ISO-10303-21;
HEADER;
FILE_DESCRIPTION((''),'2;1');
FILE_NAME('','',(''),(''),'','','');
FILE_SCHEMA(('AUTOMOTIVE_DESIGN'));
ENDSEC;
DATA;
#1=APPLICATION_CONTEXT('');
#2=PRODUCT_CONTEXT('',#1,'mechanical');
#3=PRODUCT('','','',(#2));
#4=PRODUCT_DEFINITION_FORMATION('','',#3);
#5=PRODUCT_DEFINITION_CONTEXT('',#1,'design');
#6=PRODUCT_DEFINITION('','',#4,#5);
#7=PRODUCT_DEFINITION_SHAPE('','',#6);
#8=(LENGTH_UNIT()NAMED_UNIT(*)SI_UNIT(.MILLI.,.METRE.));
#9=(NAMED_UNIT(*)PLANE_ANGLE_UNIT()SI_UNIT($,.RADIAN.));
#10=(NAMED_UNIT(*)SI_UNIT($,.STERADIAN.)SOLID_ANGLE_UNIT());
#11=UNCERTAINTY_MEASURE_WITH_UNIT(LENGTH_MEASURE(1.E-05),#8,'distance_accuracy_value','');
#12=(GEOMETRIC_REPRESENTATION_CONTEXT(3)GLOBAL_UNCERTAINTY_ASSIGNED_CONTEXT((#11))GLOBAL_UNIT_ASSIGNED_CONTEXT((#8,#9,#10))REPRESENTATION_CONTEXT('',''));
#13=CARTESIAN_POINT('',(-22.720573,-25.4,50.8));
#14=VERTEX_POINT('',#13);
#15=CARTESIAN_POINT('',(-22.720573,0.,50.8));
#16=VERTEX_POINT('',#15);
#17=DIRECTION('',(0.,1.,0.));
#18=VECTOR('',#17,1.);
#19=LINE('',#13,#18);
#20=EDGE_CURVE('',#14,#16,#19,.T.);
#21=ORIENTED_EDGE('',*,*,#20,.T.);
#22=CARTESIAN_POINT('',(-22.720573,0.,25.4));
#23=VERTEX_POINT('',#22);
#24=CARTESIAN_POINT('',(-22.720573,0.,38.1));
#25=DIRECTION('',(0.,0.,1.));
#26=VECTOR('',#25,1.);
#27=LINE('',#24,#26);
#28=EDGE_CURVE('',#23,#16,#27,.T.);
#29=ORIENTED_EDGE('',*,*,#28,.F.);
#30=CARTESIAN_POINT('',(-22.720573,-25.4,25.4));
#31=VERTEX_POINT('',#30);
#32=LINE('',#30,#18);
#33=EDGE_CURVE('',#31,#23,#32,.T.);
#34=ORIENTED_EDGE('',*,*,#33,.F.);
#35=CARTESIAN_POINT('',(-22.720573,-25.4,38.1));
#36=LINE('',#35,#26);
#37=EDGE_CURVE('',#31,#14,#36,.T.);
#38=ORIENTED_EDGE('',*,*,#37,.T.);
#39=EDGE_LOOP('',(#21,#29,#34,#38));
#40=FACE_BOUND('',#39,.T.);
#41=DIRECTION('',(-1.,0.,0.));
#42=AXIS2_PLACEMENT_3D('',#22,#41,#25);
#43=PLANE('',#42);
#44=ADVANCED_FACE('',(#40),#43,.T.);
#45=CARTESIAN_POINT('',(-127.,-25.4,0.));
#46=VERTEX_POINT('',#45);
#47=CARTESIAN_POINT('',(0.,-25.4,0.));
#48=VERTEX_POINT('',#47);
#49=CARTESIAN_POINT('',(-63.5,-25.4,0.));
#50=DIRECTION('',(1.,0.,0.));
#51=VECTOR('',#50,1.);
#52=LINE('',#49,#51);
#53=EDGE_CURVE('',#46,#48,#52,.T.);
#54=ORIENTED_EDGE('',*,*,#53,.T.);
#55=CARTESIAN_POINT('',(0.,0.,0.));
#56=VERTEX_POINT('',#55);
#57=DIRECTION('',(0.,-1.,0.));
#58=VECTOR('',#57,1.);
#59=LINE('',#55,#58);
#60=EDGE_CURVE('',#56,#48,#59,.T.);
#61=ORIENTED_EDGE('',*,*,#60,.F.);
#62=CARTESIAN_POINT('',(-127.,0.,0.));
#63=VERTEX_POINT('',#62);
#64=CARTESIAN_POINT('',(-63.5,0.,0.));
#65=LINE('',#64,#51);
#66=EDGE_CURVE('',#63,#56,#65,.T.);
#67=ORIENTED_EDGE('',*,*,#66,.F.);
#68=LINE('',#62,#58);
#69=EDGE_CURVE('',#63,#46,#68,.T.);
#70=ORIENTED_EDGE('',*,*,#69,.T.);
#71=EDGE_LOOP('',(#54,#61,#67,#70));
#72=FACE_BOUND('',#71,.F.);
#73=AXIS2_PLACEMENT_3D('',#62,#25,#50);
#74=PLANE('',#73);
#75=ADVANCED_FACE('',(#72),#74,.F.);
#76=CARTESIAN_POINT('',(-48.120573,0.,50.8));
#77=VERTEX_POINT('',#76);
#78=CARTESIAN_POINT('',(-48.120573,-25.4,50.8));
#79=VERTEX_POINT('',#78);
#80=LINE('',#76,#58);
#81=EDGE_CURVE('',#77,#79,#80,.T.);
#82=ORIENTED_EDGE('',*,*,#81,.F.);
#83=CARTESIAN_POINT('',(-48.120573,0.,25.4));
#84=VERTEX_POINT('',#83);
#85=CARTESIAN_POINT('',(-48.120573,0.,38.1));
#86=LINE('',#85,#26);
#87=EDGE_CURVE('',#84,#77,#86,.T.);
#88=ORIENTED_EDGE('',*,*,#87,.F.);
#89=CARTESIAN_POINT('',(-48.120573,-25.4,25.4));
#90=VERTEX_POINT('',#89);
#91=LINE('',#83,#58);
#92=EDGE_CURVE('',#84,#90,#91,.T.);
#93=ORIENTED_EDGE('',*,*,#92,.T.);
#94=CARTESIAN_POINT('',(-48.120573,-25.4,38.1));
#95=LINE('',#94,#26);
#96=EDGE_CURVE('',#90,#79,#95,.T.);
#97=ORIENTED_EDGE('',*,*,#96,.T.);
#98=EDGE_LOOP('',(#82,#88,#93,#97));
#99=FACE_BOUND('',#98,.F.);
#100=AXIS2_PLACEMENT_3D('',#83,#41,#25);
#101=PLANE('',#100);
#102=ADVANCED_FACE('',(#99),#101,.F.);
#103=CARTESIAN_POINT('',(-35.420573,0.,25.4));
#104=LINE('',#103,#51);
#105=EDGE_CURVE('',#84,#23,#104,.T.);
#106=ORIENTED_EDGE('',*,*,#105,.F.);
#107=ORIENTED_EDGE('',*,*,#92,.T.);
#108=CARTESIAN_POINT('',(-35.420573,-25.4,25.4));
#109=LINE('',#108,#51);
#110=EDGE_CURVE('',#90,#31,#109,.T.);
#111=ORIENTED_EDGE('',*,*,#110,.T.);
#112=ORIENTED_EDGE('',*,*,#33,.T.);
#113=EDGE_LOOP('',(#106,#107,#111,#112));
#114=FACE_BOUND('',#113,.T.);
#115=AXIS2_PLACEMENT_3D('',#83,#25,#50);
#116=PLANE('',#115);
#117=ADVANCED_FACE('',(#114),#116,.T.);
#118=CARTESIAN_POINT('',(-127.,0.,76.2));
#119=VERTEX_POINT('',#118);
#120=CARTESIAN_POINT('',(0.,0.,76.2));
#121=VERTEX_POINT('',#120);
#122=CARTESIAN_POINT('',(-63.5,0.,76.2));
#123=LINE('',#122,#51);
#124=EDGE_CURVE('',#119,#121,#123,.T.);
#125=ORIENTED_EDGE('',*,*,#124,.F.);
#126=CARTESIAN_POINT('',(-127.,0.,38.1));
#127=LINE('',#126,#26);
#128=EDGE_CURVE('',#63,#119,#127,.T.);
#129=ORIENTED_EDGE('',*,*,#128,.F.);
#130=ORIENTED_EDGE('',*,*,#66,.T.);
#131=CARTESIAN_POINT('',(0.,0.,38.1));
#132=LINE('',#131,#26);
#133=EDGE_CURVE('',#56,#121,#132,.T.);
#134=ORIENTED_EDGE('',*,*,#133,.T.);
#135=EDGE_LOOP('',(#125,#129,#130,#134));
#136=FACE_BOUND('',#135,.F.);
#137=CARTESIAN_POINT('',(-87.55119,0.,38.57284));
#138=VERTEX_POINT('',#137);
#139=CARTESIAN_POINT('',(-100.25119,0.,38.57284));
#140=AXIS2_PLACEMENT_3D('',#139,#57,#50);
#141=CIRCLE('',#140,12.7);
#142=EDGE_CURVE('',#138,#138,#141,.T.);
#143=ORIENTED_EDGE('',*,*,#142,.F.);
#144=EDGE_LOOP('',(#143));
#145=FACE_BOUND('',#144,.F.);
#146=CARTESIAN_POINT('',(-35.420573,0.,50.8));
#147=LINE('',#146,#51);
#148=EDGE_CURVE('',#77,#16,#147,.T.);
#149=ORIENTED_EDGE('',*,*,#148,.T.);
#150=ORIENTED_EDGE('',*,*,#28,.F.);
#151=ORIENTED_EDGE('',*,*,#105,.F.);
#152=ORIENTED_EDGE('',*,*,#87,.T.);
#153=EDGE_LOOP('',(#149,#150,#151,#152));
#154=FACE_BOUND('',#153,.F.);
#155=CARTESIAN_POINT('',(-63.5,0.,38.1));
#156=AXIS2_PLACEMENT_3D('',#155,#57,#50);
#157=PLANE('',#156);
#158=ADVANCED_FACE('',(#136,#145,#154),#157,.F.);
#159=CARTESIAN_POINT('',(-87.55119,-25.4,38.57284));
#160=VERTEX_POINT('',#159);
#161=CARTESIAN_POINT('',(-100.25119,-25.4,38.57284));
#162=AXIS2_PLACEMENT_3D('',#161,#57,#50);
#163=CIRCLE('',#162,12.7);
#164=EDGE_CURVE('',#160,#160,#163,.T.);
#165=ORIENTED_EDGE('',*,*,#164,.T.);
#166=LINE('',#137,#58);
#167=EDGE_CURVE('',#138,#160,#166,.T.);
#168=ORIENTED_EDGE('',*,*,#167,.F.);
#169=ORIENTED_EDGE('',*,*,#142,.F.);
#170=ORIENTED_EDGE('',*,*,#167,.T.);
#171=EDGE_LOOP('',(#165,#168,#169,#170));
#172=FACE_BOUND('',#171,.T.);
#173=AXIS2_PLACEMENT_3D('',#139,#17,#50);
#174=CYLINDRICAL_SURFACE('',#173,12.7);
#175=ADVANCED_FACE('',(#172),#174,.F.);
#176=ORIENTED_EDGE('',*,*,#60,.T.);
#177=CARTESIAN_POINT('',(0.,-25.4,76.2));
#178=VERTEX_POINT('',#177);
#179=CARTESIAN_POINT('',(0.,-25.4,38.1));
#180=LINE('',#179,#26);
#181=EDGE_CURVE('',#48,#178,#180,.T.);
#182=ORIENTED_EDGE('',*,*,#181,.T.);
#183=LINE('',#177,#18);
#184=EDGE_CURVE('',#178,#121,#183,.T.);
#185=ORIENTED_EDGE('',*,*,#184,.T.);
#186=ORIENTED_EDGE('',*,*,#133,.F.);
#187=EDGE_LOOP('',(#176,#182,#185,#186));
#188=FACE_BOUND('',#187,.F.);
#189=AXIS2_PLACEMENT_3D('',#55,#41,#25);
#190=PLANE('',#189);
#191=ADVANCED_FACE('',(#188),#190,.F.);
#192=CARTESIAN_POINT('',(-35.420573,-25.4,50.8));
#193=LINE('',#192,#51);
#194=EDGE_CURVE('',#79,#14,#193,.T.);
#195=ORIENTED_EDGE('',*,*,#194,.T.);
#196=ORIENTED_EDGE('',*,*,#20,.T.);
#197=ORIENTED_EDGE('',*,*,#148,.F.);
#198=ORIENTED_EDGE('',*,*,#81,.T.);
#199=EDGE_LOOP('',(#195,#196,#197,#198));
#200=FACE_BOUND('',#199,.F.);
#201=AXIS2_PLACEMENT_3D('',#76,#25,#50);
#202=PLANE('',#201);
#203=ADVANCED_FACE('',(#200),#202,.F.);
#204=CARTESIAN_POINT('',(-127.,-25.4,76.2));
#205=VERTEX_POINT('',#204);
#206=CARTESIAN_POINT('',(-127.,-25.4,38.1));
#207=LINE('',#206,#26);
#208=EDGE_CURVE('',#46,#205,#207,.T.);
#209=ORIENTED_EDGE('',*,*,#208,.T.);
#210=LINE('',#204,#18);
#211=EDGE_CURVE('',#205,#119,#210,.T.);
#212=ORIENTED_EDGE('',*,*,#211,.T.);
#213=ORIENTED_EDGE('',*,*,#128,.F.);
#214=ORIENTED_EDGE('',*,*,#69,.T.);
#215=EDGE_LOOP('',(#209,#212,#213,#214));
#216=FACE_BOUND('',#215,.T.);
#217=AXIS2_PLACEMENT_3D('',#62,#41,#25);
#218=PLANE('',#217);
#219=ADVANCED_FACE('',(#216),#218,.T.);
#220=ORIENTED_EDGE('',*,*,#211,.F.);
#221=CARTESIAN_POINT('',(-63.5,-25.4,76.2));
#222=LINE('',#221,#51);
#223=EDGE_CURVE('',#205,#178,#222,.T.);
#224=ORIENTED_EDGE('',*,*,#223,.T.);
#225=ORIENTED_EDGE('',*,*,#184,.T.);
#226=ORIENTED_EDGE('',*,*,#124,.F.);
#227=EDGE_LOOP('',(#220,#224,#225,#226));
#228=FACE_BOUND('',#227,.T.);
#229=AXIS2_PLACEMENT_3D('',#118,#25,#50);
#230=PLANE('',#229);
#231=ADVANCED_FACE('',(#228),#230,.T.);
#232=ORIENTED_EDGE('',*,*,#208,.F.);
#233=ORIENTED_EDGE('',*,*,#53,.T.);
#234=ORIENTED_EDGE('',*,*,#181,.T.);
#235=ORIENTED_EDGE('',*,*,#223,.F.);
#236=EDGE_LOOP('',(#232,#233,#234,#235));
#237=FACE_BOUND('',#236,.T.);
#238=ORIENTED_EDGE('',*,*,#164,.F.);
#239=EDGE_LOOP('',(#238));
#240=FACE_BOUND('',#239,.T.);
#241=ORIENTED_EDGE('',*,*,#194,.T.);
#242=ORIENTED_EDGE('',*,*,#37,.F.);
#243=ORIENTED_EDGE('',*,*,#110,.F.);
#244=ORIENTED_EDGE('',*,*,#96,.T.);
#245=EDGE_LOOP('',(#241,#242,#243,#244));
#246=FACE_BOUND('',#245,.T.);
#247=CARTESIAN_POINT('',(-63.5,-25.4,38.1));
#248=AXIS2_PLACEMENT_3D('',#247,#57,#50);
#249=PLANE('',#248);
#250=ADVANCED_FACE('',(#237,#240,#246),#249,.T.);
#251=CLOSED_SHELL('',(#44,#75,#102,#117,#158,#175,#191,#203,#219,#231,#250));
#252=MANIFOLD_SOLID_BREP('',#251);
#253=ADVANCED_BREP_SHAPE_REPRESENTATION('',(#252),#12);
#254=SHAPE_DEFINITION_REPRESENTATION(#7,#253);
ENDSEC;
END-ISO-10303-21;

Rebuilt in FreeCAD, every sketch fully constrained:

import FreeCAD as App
import Part
import Sketcher
from FreeCAD import Vector
Q = App.Units.Quantity

doc = App.newDocument("Part")
body = doc.addObject("PartDesign::Body", "Body")

# Sketch on XZ plane
sketch1 = body.newObject("Sketcher::SketchObject", "Sketch")
sketch1.AttachmentSupport = (doc.getObject("XZ_Plane"), [""])
sketch1.MapMode = "FlatFace"
sketch1.addGeometry([
    Part.LineSegment(Vector(-127, 76, 0), Vector(-127, 0, 0)),  # 0
    Part.LineSegment(Vector(-127, 0, 0), Vector(0, 0, 0)),  # 1
    Part.LineSegment(Vector(0, 0, 0), Vector(0, 76, 0)),  # 2
    Part.LineSegment(Vector(0, 76, 0), Vector(-127, 76, 0)),  # 3
    Part.LineSegment(Vector(-23, 25, 0), Vector(-48, 25, 0)),  # 4
    Part.LineSegment(Vector(-48, 25, 0), Vector(-48, 51, 0)),  # 5
    Part.LineSegment(Vector(-48, 51, 0), Vector(-23, 51, 0)),  # 6
    Part.LineSegment(Vector(-23, 51, 0), Vector(-23, 25, 0)),  # 7
    Part.Circle(Vector(-100, 39, 0), Vector(0, 0, 1), 13),  # 8
], False)
sketch1.addConstraint([
    Sketcher.Constraint("Coincident", 0, 2, 1, 1),
    Sketcher.Constraint("Coincident", 1, 2, 2, 1),
    Sketcher.Constraint("Coincident", 2, 2, 3, 1),
    Sketcher.Constraint("Coincident", 3, 2, 0, 1),
    Sketcher.Constraint("Coincident", 4, 2, 5, 1),
    Sketcher.Constraint("Coincident", 5, 2, 6, 1),
    Sketcher.Constraint("Coincident", 6, 2, 7, 1),
    Sketcher.Constraint("Coincident", 7, 2, 4, 1),
    Sketcher.Constraint("Vertical", 0),
    Sketcher.Constraint("Horizontal", 1),
    Sketcher.Constraint("Vertical", 2),
    Sketcher.Constraint("Horizontal", 3),
    Sketcher.Constraint("Horizontal", 4),
    Sketcher.Constraint("Vertical", 5),
    Sketcher.Constraint("Horizontal", 6),
    Sketcher.Constraint("Vertical", 7),
    Sketcher.Constraint("Coincident", 1, 2, -1, 1),
    Sketcher.Constraint("Equal", 6, 5),
    Sketcher.Constraint("Diameter", 8, Q("1 in")),
    Sketcher.Constraint("DistanceX", 1, 1, 1, 2, Q("5 in")),
    Sketcher.Constraint("DistanceX", 4, 2, 4, 1, Q("1 in")),
    Sketcher.Constraint("DistanceY", 0, 2, 0, 1, Q("3 in")),
    Sketcher.Constraint("DistanceY", -1, 1, 4, 2, Q("1 in")),
    Sketcher.Constraint("DistanceX", 8, 3, -1, 1, Q("100.25119 mm")),
    Sketcher.Constraint("DistanceY", -1, 1, 8, 3, Q("38.57284 mm")),
    Sketcher.Constraint("DistanceX", 4, 2, -1, 1, Q("48.120573 mm")),
])
pad1 = body.newObject("PartDesign::Pad", "Pad")
pad1.Profile = sketch1
pad1.Length = Q("1 in")

# Sketch on XZ plane
sketch2 = body.newObject("Sketcher::SketchObject", "Sketch001")
sketch2.AttachmentSupport = (doc.getObject("XZ_Plane"), [""])
sketch2.MapMode = "FlatFace"
sketch2.addGeometry([
    Part.LineSegment(Vector(-127, 76, 0), Vector(-127, 0, 0)),  # 0
    Part.LineSegment(Vector(-127, 0, 0), Vector(0, 0, 0)),  # 1
    Part.LineSegment(Vector(0, 0, 0), Vector(0, 76, 0)),  # 2
    Part.LineSegment(Vector(0, 76, 0), Vector(-127, 76, 0)),  # 3
    Part.LineSegment(Vector(-23, 25, 0), Vector(-48, 25, 0)),  # 4
    Part.LineSegment(Vector(-48, 25, 0), Vector(-48, 51, 0)),  # 5
    Part.LineSegment(Vector(-48, 51, 0), Vector(-23, 51, 0)),  # 6
    Part.LineSegment(Vector(-23, 51, 0), Vector(-23, 25, 0)),  # 7
    Part.Circle(Vector(-100, 39, 0), Vector(0, 0, 1), 13),  # 8
], False)
sketch2.addConstraint([
    Sketcher.Constraint("Coincident", 0, 2, 1, 1),
    Sketcher.Constraint("Coincident", 1, 2, 2, 1),
    Sketcher.Constraint("Coincident", 2, 2, 3, 1),
    Sketcher.Constraint("Coincident", 3, 2, 0, 1),
    Sketcher.Constraint("Coincident", 4, 2, 5, 1),
    Sketcher.Constraint("Coincident", 5, 2, 6, 1),
    Sketcher.Constraint("Coincident", 6, 2, 7, 1),
    Sketcher.Constraint("Coincident", 7, 2, 4, 1),
    Sketcher.Constraint("Vertical", 0),
    Sketcher.Constraint("Horizontal", 1),
    Sketcher.Constraint("Vertical", 2),
    Sketcher.Constraint("Horizontal", 3),
    Sketcher.Constraint("Horizontal", 4),
    Sketcher.Constraint("Vertical", 5),
    Sketcher.Constraint("Horizontal", 6),
    Sketcher.Constraint("Vertical", 7),
    Sketcher.Constraint("Coincident", 1, 2, -1, 1),
    Sketcher.Constraint("Equal", 6, 5),
    Sketcher.Constraint("Diameter", 8, Q("1 in")),
    Sketcher.Constraint("DistanceX", 1, 1, 1, 2, Q("5 in")),
    Sketcher.Constraint("DistanceX", 4, 2, 4, 1, Q("1 in")),
    Sketcher.Constraint("DistanceY", 0, 2, 0, 1, Q("3 in")),
    Sketcher.Constraint("DistanceY", -1, 1, 4, 2, Q("1 in")),
    Sketcher.Constraint("DistanceX", 8, 3, -1, 1, Q("100.25119 mm")),
    Sketcher.Constraint("DistanceY", -1, 1, 8, 3, Q("38.57284 mm")),
    Sketcher.Constraint("DistanceX", 4, 2, -1, 1, Q("48.120573 mm")),
])
pad2 = body.newObject("PartDesign::Pad", "Pad001")
pad2.Profile = sketch2
pad2.Length = Q("0.75 in")

doc.recompute()
